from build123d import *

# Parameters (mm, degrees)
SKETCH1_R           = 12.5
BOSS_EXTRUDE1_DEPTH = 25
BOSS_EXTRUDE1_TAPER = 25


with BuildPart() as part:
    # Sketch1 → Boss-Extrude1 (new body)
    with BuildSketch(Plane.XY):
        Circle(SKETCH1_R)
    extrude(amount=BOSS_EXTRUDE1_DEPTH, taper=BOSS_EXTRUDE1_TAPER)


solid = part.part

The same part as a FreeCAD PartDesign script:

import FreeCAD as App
import Part
import Sketcher
from FreeCAD import Vector

doc = App.newDocument("Part")
body = doc.addObject("PartDesign::Body", "Body")

# Sketch on XY plane
sketch1 = body.newObject("Sketcher::SketchObject", "Sketch")
sketch1.AttachmentSupport = (doc.getObject("XY_Plane"), [""])
sketch1.MapMode = "FlatFace"
sketch1.addGeometry(Part.Circle(Vector(0, 0, 0), Vector(0, 0, 1), 12), False)
sketch1.addConstraint([
    Sketcher.Constraint("Coincident", 0, 3, -1, 1),
    Sketcher.Constraint("Diameter", 0, 25.0),
])
pad1 = body.newObject("PartDesign::Pad", "Pad")
pad1.Profile = sketch1
pad1.Length = 25
pad1.TaperAngle = -25

doc.recompute()
